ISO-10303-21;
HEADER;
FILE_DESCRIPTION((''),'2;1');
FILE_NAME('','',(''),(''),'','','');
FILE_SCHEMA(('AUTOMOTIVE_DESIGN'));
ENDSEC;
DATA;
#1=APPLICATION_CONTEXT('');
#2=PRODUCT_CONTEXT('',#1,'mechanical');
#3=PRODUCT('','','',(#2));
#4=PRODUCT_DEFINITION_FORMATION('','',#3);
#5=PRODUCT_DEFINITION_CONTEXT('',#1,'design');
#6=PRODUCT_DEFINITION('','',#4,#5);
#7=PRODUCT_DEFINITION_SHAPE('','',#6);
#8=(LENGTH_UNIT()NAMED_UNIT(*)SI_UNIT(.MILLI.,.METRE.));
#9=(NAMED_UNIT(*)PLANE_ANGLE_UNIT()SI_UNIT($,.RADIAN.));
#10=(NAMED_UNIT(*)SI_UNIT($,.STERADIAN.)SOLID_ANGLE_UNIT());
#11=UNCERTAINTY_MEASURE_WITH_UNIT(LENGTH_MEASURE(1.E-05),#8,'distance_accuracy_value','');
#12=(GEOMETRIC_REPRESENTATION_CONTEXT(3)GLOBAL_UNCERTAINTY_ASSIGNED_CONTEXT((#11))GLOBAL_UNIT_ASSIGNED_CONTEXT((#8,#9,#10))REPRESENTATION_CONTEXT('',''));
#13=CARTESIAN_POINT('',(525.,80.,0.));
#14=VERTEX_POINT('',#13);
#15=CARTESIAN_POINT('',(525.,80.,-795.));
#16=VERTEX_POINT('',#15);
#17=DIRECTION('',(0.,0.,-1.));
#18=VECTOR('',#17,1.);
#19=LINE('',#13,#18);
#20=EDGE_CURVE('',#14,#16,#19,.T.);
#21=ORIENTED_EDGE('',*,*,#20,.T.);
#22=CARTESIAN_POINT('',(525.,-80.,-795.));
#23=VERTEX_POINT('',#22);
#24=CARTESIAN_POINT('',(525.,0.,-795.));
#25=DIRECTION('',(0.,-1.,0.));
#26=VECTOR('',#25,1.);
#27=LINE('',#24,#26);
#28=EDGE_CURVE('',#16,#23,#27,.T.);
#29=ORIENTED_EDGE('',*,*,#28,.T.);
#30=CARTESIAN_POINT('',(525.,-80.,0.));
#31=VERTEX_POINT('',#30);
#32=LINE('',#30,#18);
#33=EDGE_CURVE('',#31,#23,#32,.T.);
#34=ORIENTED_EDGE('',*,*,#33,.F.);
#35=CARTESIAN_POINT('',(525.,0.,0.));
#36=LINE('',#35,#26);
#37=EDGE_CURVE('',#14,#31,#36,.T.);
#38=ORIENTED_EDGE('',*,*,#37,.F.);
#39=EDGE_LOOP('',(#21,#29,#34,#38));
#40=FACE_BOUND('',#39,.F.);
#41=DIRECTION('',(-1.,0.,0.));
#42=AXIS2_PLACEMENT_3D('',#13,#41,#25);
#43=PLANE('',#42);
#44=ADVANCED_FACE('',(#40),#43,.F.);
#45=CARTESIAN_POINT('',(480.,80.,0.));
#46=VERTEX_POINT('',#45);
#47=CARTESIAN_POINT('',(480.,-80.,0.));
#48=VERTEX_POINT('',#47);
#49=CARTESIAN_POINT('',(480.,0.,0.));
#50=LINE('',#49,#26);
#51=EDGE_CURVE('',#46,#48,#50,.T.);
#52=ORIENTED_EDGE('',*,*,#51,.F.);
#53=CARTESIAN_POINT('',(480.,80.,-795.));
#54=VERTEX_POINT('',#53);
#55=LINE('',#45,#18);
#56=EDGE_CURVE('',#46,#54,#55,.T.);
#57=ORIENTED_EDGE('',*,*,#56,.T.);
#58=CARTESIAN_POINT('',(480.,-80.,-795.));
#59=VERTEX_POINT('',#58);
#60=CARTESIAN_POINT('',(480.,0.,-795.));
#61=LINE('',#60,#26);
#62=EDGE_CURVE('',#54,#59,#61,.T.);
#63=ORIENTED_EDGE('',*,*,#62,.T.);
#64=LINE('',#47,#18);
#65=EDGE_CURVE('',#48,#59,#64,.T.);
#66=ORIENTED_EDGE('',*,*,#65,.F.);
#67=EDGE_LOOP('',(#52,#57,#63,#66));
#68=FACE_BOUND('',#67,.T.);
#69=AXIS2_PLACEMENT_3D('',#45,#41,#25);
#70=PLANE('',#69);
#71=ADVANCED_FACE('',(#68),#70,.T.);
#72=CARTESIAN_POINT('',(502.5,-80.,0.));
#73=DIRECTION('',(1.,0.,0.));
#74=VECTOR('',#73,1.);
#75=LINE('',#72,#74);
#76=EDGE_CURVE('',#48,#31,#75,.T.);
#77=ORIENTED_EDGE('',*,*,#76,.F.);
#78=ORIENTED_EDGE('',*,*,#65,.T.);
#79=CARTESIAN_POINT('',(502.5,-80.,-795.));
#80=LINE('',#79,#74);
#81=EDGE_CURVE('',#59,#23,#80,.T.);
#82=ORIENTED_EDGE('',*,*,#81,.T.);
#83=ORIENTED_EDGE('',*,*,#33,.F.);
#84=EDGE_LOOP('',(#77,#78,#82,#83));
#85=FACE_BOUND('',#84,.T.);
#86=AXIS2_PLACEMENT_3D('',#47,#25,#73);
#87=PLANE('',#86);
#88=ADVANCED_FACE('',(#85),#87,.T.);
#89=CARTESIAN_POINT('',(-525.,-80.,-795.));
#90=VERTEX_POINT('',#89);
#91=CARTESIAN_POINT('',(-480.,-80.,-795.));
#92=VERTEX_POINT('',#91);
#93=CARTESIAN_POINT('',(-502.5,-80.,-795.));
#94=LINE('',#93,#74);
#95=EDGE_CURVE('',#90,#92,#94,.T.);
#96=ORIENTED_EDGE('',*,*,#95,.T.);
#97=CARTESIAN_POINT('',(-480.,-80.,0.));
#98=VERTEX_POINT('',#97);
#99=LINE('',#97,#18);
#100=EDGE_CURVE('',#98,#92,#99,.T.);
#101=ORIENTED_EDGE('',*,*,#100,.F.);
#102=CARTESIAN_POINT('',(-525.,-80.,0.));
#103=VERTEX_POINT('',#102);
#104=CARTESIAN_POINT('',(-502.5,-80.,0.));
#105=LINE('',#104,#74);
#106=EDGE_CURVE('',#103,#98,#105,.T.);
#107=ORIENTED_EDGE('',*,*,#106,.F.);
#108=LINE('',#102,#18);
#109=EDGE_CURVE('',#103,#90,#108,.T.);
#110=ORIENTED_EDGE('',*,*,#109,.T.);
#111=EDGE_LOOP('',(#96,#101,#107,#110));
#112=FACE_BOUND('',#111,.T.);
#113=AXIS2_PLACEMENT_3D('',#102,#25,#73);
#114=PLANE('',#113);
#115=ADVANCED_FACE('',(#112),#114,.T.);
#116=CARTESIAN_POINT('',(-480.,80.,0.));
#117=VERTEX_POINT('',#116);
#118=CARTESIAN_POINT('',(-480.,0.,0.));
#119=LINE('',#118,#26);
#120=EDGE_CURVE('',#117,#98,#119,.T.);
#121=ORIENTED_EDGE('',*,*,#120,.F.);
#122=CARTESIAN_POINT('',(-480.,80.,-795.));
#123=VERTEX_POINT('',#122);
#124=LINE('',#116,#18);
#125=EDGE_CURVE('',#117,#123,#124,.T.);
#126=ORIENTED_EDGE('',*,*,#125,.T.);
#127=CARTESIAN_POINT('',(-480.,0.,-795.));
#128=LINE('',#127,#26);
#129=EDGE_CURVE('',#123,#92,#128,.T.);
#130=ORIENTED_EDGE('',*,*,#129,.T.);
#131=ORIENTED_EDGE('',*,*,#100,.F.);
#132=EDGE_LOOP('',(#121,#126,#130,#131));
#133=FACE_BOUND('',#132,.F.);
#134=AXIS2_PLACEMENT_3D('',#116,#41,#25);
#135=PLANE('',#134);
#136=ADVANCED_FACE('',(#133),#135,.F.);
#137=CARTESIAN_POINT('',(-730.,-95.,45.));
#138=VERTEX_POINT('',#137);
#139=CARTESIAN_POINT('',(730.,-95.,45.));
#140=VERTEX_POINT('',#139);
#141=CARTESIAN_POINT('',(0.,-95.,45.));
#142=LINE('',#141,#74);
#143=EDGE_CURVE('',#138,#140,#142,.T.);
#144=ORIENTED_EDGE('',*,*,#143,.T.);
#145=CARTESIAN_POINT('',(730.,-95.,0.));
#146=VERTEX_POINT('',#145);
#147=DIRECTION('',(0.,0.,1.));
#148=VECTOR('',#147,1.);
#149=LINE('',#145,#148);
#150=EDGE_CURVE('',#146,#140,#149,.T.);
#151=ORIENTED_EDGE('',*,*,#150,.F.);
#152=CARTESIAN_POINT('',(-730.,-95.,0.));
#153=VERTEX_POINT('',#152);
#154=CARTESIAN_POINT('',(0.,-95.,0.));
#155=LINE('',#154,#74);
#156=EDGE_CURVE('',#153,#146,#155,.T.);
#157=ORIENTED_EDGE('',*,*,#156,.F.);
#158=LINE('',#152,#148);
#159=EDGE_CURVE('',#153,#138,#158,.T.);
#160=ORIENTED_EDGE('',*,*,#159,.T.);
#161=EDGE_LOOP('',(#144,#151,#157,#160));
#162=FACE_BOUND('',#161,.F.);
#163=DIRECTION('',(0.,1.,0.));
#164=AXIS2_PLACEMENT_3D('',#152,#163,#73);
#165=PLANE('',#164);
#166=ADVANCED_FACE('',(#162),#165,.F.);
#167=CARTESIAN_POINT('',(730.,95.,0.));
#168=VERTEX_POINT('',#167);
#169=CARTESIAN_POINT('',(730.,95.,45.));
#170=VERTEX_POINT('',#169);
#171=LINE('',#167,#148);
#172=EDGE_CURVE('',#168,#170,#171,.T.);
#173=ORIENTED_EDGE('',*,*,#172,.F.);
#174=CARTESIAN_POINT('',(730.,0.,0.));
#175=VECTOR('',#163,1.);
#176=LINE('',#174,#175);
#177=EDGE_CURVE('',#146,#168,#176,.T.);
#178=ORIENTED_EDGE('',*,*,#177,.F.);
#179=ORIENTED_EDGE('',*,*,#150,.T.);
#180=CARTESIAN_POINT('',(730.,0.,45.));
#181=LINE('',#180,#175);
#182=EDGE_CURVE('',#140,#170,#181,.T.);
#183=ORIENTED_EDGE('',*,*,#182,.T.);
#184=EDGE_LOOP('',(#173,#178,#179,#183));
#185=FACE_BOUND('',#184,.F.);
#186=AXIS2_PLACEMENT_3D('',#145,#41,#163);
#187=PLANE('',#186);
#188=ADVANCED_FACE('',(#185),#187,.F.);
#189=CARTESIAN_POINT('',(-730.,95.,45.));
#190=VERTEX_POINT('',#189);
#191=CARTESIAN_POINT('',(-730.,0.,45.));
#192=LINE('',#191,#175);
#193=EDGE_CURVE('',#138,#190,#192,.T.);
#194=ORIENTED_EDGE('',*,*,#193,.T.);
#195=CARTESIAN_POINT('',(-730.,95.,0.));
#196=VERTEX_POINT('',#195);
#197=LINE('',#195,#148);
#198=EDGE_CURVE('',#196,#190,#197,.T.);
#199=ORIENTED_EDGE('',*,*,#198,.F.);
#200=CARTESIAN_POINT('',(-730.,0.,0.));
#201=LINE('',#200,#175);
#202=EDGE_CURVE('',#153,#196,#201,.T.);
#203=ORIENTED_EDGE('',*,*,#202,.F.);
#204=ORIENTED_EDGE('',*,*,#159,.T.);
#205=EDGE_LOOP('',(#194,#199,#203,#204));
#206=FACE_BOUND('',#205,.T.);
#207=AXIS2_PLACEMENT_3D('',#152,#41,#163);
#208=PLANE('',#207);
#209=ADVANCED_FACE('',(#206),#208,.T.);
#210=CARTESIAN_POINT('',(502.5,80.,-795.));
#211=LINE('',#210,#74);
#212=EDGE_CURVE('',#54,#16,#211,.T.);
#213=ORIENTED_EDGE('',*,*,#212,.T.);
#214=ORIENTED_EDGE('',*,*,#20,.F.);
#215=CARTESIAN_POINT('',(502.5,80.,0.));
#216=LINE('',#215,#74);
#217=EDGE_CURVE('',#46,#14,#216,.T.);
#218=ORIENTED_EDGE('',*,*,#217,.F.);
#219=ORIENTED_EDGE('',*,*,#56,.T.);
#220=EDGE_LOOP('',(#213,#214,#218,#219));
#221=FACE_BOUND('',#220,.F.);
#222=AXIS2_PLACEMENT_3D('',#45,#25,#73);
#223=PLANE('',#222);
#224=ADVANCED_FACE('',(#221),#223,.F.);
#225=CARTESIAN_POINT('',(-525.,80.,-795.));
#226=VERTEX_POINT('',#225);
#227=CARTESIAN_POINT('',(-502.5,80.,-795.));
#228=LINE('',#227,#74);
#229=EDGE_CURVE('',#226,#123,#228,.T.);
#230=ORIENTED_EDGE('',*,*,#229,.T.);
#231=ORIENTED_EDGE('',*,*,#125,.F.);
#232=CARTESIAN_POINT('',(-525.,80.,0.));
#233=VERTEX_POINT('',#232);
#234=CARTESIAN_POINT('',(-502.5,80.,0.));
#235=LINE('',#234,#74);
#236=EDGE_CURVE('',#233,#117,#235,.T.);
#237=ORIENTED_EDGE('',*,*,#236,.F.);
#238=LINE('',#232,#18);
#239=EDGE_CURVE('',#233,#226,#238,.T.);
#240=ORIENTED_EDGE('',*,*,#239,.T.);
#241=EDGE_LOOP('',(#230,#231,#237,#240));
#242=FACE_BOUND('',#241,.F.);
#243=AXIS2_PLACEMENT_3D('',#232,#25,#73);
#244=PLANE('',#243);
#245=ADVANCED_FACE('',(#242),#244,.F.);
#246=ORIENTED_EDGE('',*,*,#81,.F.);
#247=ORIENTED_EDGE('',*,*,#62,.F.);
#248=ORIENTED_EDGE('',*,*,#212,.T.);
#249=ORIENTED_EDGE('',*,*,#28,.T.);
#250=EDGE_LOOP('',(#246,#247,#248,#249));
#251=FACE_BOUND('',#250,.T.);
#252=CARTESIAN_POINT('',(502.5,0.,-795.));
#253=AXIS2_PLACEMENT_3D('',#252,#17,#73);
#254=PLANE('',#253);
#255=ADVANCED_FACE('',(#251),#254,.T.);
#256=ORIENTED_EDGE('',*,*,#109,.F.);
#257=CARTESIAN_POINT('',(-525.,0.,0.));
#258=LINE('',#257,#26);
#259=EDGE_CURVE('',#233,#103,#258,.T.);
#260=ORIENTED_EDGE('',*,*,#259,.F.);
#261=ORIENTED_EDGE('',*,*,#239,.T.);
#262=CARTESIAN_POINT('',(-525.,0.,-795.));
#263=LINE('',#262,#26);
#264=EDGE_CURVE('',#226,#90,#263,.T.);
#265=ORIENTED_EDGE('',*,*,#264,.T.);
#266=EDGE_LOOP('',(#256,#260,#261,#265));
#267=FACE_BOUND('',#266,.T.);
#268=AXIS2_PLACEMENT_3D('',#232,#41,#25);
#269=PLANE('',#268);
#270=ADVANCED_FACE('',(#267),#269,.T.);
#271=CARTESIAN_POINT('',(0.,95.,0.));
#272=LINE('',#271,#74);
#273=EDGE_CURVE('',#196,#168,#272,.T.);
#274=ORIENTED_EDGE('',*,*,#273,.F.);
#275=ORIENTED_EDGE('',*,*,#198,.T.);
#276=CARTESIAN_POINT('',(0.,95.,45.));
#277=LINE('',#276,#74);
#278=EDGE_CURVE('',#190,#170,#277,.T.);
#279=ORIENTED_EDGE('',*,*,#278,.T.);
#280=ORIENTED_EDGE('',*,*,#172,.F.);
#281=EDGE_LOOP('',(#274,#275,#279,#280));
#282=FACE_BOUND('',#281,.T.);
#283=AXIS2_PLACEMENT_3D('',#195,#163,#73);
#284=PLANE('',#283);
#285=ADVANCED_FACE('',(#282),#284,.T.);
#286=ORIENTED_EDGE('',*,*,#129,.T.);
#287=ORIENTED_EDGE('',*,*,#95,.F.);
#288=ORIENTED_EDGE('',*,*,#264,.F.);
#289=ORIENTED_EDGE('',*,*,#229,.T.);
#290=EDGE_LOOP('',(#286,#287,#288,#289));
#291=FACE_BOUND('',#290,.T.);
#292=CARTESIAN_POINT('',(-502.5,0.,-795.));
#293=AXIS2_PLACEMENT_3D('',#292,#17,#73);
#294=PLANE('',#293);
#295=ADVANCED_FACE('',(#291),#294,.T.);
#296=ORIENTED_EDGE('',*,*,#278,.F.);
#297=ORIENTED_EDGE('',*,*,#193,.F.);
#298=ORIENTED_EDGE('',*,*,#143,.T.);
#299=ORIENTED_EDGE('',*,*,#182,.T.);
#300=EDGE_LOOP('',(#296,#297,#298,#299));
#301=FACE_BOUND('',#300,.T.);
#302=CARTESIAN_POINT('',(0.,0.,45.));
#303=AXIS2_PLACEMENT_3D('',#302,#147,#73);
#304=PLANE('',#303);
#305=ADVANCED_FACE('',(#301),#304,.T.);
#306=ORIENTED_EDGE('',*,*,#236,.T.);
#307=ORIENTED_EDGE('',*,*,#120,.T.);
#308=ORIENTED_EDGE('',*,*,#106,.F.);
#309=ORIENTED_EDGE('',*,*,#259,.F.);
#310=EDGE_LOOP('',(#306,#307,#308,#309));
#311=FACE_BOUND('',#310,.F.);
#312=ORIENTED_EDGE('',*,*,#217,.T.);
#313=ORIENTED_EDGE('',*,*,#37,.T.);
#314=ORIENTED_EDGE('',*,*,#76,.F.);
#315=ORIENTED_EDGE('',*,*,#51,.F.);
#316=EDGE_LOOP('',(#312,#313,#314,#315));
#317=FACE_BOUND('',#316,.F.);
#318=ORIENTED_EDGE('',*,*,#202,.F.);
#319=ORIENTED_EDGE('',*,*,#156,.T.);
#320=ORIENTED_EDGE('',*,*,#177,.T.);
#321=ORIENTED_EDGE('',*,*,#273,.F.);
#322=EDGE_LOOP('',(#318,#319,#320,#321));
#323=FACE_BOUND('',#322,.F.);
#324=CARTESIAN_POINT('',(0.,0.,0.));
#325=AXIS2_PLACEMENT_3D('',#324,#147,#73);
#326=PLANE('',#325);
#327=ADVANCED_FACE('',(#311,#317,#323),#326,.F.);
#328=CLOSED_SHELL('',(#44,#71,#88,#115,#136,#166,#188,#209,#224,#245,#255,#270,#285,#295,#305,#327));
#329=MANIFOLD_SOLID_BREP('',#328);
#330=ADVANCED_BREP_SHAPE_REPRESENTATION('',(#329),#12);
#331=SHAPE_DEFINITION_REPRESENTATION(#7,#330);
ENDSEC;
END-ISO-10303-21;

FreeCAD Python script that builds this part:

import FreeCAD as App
import Part
import Sketcher
Q = App.Units.Quantity


def add_polygon(sketch, points):
    """Adds a closed chain of lines whose ends are joined by coincident constraints."""
    first, n = sketch.GeometryCount, len(points)
    for a, b in zip(points, points[1:] + points[:1]):
        sketch.addGeometry(Part.LineSegment(App.Vector(*a, 0), App.Vector(*b, 0)), False)
    for i in range(n):
        sketch.addConstraint(Sketcher.Constraint("Coincident", first + i, 2, first + (i + 1) % n, 1))

doc = App.newDocument("Part")
body = doc.addObject("PartDesign::Body", "Body")

sketch1 = body.newObject("Sketcher::SketchObject", "Sketch")
sketch1.AttachmentSupport = (doc.getObject("XY_Plane"), [""])
sketch1.MapMode = "FlatFace"
add_polygon(sketch1, [(-730, 95), (-730, -95), (730, -95), (730, 95)])
sketch1.addConstraint([
    Sketcher.Constraint("Vertical", 0),
    Sketcher.Constraint("Horizontal", 1),
    Sketcher.Constraint("Vertical", 2),
    Sketcher.Constraint("Horizontal", 3),
    Sketcher.Constraint("Symmetric", 0, 2, 2, 2, -1, 1),
    Sketcher.Constraint("DistanceX", 1, 1, 1, 2, Q("1460 mm")),
    Sketcher.Constraint("DistanceY", 0, 2, 0, 1, Q("190 mm")),
])
pad1 = body.newObject("PartDesign::Pad", "Pad")
pad1.Profile = sketch1
pad1.Length = 45

sketch2 = body.newObject("Sketcher::SketchObject", "Sketch001")
sketch2.AttachmentSupport = (doc.getObject("XY_Plane"), [""])
sketch2.MapMode = "FlatFace"
add_polygon(sketch2, [(-525, -80), (-525, 80), (-480, 80), (-480, -80)])
add_polygon(sketch2, [(480, -80), (480, 80), (525, 80), (525, -80)])
sketch2.addConstraint([
    Sketcher.Constraint("Vertical", 0),
    Sketcher.Constraint("Horizontal", 1),
    Sketcher.Constraint("Vertical", 2),
    Sketcher.Constraint("Horizontal", 3),
    Sketcher.Constraint("Vertical", 4),
    Sketcher.Constraint("Horizontal", 5),
    Sketcher.Constraint("Vertical", 6),
    Sketcher.Constraint("Horizontal", 7),
    Sketcher.Constraint("Symmetric", 2, 2, 4, 2, -1, 1),
    Sketcher.Constraint("Symmetric", 0, 2, 6, 2, -1, 1),
    Sketcher.Constraint("Horizontal", 1, 2, 4, 2),
    Sketcher.Constraint("DistanceX", 1, 1, 1, 2, Q("45 mm")),
    Sketcher.Constraint("DistanceY", 0, 1, 0, 2, Q("160 mm")),
    Sketcher.Constraint("DistanceX", 0, 2, -1, 1, Q("525 mm")),
])
pad2 = body.newObject("PartDesign::Pad", "Pad001")
pad2.Profile = sketch2
pad2.Length = 795
pad2.Reversed = True

doc.recompute()
